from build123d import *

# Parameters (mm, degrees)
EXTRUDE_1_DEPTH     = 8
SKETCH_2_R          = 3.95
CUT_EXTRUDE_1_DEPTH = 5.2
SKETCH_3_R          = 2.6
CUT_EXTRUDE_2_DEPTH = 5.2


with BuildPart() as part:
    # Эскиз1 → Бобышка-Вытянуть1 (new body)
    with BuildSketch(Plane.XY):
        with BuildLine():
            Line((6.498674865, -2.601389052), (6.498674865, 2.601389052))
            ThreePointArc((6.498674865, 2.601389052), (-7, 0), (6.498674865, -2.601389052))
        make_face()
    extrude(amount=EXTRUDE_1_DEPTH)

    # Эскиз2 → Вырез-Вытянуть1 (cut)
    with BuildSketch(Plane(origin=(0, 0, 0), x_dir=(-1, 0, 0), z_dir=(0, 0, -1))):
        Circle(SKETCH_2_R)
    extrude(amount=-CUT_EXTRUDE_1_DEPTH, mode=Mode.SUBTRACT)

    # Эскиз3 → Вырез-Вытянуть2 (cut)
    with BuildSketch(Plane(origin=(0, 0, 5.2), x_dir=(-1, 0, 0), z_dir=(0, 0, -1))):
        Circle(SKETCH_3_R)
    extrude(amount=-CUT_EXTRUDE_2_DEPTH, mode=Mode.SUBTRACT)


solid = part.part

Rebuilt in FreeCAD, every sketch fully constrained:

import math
import FreeCAD as App
import Part
import Sketcher
from FreeCAD import Vector
Q = App.Units.Quantity

doc = App.newDocument("Part")
params = doc.addObject("Spreadsheet::Sheet", "Params")
for row, (alias, value) in enumerate([
    ("sketch1_radius", "7 mm"),
    ("pad1_length", "8 mm"),
    ("sketch2_diameter", "7.9 mm"),
    ("pocket1_length", "5.2 mm"),
    ("sketch3_diameter", "5.2 mm"),
    ("pocket2_length", "5.2 mm"),
], start=1):
    params.set(f"A{row}", alias)
    params.set(f"B{row}", "=" + value)
    params.setAlias(f"B{row}", alias)

body = doc.addObject("PartDesign::Body", "Body")

# Sketch on XY plane
sketch1 = doc.addObject("Sketcher::SketchObject", "Sketch")
body.addObject(sketch1)
sketch1.AttachmentSupport = (doc.XY_Plane, [""])
sketch1.MapMode = "FlatFace"
sketch1.addGeometry([
    Part.LineSegment(Vector(6, -3, 0), Vector(6, 3, 0)),
    Part.ArcOfCircle(Part.Circle(Vector(0, 0, 0), Vector(0, 0, 1), 7), math.radians(22), math.radians(338)),
], False)
sketch1.addConstraint([
    Sketcher.Constraint("Coincident", 0, 1, 1, 2),
    Sketcher.Constraint("Coincident", 1, 1, 0, 2),
    Sketcher.Constraint("Vertical", 0),
    Sketcher.Constraint("Coincident", 1, 3, -1, 1),
    Sketcher.Constraint("Radius", 1, Q("7 mm")),
    Sketcher.Constraint("DistanceY", 0, 1, 0, 2, Q("5.202778 mm")),
])
sketch1.setExpression("Constraints[4]", "Params.sketch1_radius")
pad1 = doc.addObject("PartDesign::Pad", "Pad")
body.addObject(pad1)
pad1.Profile = sketch1
pad1.setExpression("Length", "Params.pad1_length")

# Sketch on XY plane
sketch2 = doc.addObject("Sketcher::SketchObject", "Sketch001")
body.addObject(sketch2)
sketch2.AttachmentSupport = (doc.XY_Plane, [""])
sketch2.MapMode = "FlatFace"
sketch2.addGeometry(Part.Circle(Vector(0, 0, 0), Vector(0, 0, 1), 4), False)
sketch2.addConstraint([
    Sketcher.Constraint("Coincident", 0, 3, -1, 1),
    Sketcher.Constraint("Diameter", 0, Q("7.9 mm")),
])
sketch2.setExpression("Constraints[1]", "Params.sketch2_diameter")
pocket1 = doc.addObject("PartDesign::Pocket", "Pocket")
body.addObject(pocket1)
pocket1.Profile = sketch2
pocket1.setExpression("Length", "Params.pocket1_length")
pocket1.Reversed = True

# Sketch on XY plane
sketch3 = doc.addObject("Sketcher::SketchObject", "Sketch002")
body.addObject(sketch3)
sketch3.AttachmentSupport = (doc.XY_Plane, [""])
sketch3.MapMode = "FlatFace"
sketch3.AttachmentOffset = App.Placement(Vector(0, 0, 5.2), App.Rotation())
sketch3.addGeometry(Part.Circle(Vector(0, 0, 0), Vector(0, 0, 1), 2.6), False)
sketch3.addConstraint([
    Sketcher.Constraint("Coincident", 0, 3, -1, 1),
    Sketcher.Constraint("Diameter", 0, Q("5.2 mm")),
])
sketch3.setExpression("Constraints[1]", "Params.sketch3_diameter")
pocket2 = doc.addObject("PartDesign::Pocket", "Pocket001")
body.addObject(pocket2)
pocket2.Profile = sketch3
pocket2.setExpression("Length", "Params.pocket2_length")
pocket2.Reversed = True

doc.recompute()
